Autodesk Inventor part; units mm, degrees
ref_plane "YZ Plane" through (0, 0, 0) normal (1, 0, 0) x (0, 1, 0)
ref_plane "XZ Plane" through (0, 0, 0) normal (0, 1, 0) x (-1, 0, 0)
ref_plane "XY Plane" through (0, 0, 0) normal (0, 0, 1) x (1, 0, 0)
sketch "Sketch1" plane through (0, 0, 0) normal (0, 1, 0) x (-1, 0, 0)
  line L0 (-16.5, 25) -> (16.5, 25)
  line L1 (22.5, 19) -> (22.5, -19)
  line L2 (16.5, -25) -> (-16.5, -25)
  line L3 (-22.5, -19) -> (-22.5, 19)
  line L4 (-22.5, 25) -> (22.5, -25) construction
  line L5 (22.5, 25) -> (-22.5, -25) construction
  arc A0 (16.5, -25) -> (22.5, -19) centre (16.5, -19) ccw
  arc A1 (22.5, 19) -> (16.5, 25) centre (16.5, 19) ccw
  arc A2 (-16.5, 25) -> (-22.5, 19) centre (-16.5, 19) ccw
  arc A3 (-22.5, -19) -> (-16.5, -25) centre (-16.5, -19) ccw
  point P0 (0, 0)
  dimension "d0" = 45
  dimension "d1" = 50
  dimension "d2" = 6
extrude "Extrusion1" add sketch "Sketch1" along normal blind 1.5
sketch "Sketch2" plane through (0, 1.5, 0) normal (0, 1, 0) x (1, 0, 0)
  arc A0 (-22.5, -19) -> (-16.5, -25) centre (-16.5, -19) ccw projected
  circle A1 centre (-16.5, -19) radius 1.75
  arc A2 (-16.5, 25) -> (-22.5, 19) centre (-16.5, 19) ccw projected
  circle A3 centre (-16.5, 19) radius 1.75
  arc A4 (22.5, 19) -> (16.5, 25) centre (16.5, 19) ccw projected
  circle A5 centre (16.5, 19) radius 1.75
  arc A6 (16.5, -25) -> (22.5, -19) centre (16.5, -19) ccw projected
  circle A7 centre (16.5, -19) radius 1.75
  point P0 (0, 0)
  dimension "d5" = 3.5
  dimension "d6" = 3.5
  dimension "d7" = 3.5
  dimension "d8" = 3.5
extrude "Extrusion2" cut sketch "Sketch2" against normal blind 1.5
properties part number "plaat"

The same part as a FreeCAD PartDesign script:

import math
import FreeCAD as App
import Part
import Sketcher
Q = App.Units.Quantity

doc = App.newDocument("Part")
body = doc.addObject("PartDesign::Body", "Body")

# Sketch on XZ plane
sketch1 = body.newObject("Sketcher::SketchObject", "Sketch")
sketch1.AttachmentSupport = (doc.getObject("XZ_Plane"), [""])
sketch1.MapMode = "FlatFace"
sketch1.addGeometry(Part.LineSegment(App.Vector(-16, 25, 0), App.Vector(16, 25, 0)), False)
sketch1.addGeometry(Part.ArcOfCircle(Part.Circle(App.Vector(16, 19, 0), App.Vector(0, 0, 1), 6), math.radians(0), math.radians(90)), False)
sketch1.addGeometry(Part.LineSegment(App.Vector(22, 19, 0), App.Vector(22, -19, 0)), False)
sketch1.addGeometry(Part.ArcOfCircle(Part.Circle(App.Vector(16, -19, 0), App.Vector(0, 0, 1), 6), math.radians(-90), math.radians(0)), False)
sketch1.addGeometry(Part.LineSegment(App.Vector(16, -25, 0), App.Vector(-16, -25, 0)), False)
sketch1.addGeometry(Part.ArcOfCircle(Part.Circle(App.Vector(-16, -19, 0), App.Vector(0, 0, 1), 6), math.radians(180), math.radians(270)), False)
sketch1.addGeometry(Part.LineSegment(App.Vector(-22, -19, 0), App.Vector(-22, 19, 0)), False)
sketch1.addGeometry(Part.ArcOfCircle(Part.Circle(App.Vector(-16, 19, 0), App.Vector(0, 0, 1), 6), math.radians(90), math.radians(180)), False)
sketch1.addConstraint(Sketcher.Constraint("Tangent", 0, 2, 1, 2))
sketch1.addConstraint(Sketcher.Constraint("Tangent", 1, 1, 2, 1))
sketch1.addConstraint(Sketcher.Constraint("Tangent", 2, 2, 3, 2))
sketch1.addConstraint(Sketcher.Constraint("Tangent", 3, 1, 4, 1))
sketch1.addConstraint(Sketcher.Constraint("Tangent", 4, 2, 5, 2))
sketch1.addConstraint(Sketcher.Constraint("Tangent", 5, 1, 6, 1))
sketch1.addConstraint(Sketcher.Constraint("Tangent", 6, 2, 7, 2))
sketch1.addConstraint(Sketcher.Constraint("Tangent", 7, 1, 0, 1))
sketch1.addConstraint(Sketcher.Constraint("Horizontal", 0))
sketch1.addConstraint(Sketcher.Constraint("Vertical", 2))
sketch1.addConstraint(Sketcher.Constraint("Horizontal", 4))
sketch1.addConstraint(Sketcher.Constraint("Vertical", 6))
sketch1.addConstraint(Sketcher.Constraint("Equal", 1, 3))
sketch1.addConstraint(Sketcher.Constraint("Equal", 3, 5))
sketch1.addConstraint(Sketcher.Constraint("Equal", 5, 7))
sketch1.addConstraint(Sketcher.Constraint("Symmetric", 1, 3, 5, 3, -1, 1))
sketch1.addConstraint(Sketcher.Constraint("Radius", 1, Q("6 mm")))
sketch1.addConstraint(Sketcher.Constraint("DistanceX", 0, 1, 0, 2, Q("33 mm")))
sketch1.addConstraint(Sketcher.Constraint("DistanceY", 2, 2, 2, 1, Q("38 mm")))
pad1 = body.newObject("PartDesign::Pad", "Pad")
pad1.Profile = sketch1
pad1.Length = 1.5
pad1.Reversed = True

# Sketch on XZ plane
sketch2 = body.newObject("Sketcher::SketchObject", "Sketch001")
sketch2.AttachmentSupport = (doc.getObject("XZ_Plane"), [""])
sketch2.MapMode = "FlatFace"
sketch2.AttachmentOffset = App.Placement(App.Vector(0, 0, -1.5), App.Rotation())
sketch2.addGeometry(Part.Circle(App.Vector(-16.5, 19, 0), App.Vector(0, 0, 1), 1.8), False)
sketch2.addGeometry(Part.Circle(App.Vector(-16.5, -19, 0), App.Vector(0, 0, 1), 1.8), False)
sketch2.addGeometry(Part.Circle(App.Vector(16.5, -19, 0), App.Vector(0, 0, 1), 1.8), False)
sketch2.addGeometry(Part.Circle(App.Vector(16.5, 19, 0), App.Vector(0, 0, 1), 1.8), False)
sketch2.addConstraint(Sketcher.Constraint("Equal", 0, 1))
sketch2.addConstraint(Sketcher.Constraint("Equal", 1, 2))
sketch2.addConstraint(Sketcher.Constraint("Equal", 2, 3))
sketch2.addConstraint(Sketcher.Constraint("Symmetric", 0, 3, 2, 3, -1, 1))
sketch2.addConstraint(Sketcher.Constraint("Symmetric", 1, 3, 3, 3, -1, 1))
sketch2.addConstraint(Sketcher.Constraint("Symmetric", 1, 3, 2, 3, -2))
sketch2.addConstraint(Sketcher.Constraint("Diameter", 0, Q("3.5 mm")))
sketch2.addConstraint(Sketcher.Constraint("DistanceY", -1, 1, 0, 3, Q("19 mm")))
sketch2.addConstraint(Sketcher.Constraint("DistanceX", 1, 3, 2, 3, Q("33 mm")))
pocket1 = body.newObject("PartDesign::Pocket", "Pocket")
pocket1.Profile = sketch2
pocket1.Length = 1.5
pocket1.Reversed = True

doc.recompute()
